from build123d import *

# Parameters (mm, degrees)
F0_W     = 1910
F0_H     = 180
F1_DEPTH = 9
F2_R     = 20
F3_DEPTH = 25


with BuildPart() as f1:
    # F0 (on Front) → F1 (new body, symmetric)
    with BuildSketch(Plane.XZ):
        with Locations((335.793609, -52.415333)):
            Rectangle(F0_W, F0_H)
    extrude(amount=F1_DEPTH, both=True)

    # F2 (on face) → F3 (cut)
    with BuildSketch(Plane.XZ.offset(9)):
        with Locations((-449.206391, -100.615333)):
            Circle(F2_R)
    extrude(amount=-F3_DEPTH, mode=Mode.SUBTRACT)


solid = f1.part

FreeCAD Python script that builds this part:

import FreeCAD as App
import Part
import Sketcher


def add_polygon(sketch, points):
    """Adds a closed chain of lines whose ends are joined by coincident constraints."""
    first, n = sketch.GeometryCount, len(points)
    for a, b in zip(points, points[1:] + points[:1]):
        sketch.addGeometry(Part.LineSegment(App.Vector(*a, 0), App.Vector(*b, 0)), False)
    for i in range(n):
        sketch.addConstraint(Sketcher.Constraint("Coincident", first + i, 2, first + (i + 1) % n, 1))

doc = App.newDocument("Part")
body = doc.addObject("PartDesign::Body", "Body")

# Sketch on XZ plane
sketch1 = body.newObject("Sketcher::SketchObject", "Sketch")
sketch1.AttachmentSupport = (doc.getObject("XZ_Plane"), [""])
sketch1.MapMode = "FlatFace"
add_polygon(sketch1, [(-619.206391, 37.584667), (-619.206391, -142.415333), (1290.793609, -142.415333), (1290.793609, 37.584667)])  # lines 0-3
sketch1.addConstraint([
    Sketcher.Constraint("Vertical", 0),
    Sketcher.Constraint("Horizontal", 1),
    Sketcher.Constraint("Vertical", 2),
    Sketcher.Constraint("Horizontal", 3),
    Sketcher.Constraint("DistanceX", 1, 1, 1, 2, 1910.0),
    Sketcher.Constraint("DistanceY", 0, 2, 0, 1, 180.0),
    Sketcher.Constraint("DistanceX", 0, 2, -1, 1, 619.206391),
    Sketcher.Constraint("DistanceY", 0, 2, -1, 1, 142.415333),
])
pad1 = body.newObject("PartDesign::Pad", "Pad")
pad1.Profile = sketch1
pad1.Length = 18
pad1.Midplane = True

# Sketch on XZ plane
sketch2 = body.newObject("Sketcher::SketchObject", "Sketch001")
sketch2.AttachmentSupport = (doc.getObject("XZ_Plane"), [""])
sketch2.MapMode = "FlatFace"
sketch2.AttachmentOffset = App.Placement(App.Vector(0, 0, 9), App.Rotation())
sketch2.addGeometry(Part.Circle(App.Vector(-449.206391, -100.615333, 0), App.Vector(0, 0, 1), 20), False)
sketch2.addConstraint([
    Sketcher.Constraint("Diameter", 0, 40.0),
    Sketcher.Constraint("DistanceX", 0, 3, -1, 1, 449.206391),
    Sketcher.Constraint("DistanceY", 0, 3, -1, 1, 100.615333),
])
pocket1 = body.newObject("PartDesign::Pocket", "Pocket")
pocket1.Profile = sketch2
pocket1.Length = 25

doc.recompute()
